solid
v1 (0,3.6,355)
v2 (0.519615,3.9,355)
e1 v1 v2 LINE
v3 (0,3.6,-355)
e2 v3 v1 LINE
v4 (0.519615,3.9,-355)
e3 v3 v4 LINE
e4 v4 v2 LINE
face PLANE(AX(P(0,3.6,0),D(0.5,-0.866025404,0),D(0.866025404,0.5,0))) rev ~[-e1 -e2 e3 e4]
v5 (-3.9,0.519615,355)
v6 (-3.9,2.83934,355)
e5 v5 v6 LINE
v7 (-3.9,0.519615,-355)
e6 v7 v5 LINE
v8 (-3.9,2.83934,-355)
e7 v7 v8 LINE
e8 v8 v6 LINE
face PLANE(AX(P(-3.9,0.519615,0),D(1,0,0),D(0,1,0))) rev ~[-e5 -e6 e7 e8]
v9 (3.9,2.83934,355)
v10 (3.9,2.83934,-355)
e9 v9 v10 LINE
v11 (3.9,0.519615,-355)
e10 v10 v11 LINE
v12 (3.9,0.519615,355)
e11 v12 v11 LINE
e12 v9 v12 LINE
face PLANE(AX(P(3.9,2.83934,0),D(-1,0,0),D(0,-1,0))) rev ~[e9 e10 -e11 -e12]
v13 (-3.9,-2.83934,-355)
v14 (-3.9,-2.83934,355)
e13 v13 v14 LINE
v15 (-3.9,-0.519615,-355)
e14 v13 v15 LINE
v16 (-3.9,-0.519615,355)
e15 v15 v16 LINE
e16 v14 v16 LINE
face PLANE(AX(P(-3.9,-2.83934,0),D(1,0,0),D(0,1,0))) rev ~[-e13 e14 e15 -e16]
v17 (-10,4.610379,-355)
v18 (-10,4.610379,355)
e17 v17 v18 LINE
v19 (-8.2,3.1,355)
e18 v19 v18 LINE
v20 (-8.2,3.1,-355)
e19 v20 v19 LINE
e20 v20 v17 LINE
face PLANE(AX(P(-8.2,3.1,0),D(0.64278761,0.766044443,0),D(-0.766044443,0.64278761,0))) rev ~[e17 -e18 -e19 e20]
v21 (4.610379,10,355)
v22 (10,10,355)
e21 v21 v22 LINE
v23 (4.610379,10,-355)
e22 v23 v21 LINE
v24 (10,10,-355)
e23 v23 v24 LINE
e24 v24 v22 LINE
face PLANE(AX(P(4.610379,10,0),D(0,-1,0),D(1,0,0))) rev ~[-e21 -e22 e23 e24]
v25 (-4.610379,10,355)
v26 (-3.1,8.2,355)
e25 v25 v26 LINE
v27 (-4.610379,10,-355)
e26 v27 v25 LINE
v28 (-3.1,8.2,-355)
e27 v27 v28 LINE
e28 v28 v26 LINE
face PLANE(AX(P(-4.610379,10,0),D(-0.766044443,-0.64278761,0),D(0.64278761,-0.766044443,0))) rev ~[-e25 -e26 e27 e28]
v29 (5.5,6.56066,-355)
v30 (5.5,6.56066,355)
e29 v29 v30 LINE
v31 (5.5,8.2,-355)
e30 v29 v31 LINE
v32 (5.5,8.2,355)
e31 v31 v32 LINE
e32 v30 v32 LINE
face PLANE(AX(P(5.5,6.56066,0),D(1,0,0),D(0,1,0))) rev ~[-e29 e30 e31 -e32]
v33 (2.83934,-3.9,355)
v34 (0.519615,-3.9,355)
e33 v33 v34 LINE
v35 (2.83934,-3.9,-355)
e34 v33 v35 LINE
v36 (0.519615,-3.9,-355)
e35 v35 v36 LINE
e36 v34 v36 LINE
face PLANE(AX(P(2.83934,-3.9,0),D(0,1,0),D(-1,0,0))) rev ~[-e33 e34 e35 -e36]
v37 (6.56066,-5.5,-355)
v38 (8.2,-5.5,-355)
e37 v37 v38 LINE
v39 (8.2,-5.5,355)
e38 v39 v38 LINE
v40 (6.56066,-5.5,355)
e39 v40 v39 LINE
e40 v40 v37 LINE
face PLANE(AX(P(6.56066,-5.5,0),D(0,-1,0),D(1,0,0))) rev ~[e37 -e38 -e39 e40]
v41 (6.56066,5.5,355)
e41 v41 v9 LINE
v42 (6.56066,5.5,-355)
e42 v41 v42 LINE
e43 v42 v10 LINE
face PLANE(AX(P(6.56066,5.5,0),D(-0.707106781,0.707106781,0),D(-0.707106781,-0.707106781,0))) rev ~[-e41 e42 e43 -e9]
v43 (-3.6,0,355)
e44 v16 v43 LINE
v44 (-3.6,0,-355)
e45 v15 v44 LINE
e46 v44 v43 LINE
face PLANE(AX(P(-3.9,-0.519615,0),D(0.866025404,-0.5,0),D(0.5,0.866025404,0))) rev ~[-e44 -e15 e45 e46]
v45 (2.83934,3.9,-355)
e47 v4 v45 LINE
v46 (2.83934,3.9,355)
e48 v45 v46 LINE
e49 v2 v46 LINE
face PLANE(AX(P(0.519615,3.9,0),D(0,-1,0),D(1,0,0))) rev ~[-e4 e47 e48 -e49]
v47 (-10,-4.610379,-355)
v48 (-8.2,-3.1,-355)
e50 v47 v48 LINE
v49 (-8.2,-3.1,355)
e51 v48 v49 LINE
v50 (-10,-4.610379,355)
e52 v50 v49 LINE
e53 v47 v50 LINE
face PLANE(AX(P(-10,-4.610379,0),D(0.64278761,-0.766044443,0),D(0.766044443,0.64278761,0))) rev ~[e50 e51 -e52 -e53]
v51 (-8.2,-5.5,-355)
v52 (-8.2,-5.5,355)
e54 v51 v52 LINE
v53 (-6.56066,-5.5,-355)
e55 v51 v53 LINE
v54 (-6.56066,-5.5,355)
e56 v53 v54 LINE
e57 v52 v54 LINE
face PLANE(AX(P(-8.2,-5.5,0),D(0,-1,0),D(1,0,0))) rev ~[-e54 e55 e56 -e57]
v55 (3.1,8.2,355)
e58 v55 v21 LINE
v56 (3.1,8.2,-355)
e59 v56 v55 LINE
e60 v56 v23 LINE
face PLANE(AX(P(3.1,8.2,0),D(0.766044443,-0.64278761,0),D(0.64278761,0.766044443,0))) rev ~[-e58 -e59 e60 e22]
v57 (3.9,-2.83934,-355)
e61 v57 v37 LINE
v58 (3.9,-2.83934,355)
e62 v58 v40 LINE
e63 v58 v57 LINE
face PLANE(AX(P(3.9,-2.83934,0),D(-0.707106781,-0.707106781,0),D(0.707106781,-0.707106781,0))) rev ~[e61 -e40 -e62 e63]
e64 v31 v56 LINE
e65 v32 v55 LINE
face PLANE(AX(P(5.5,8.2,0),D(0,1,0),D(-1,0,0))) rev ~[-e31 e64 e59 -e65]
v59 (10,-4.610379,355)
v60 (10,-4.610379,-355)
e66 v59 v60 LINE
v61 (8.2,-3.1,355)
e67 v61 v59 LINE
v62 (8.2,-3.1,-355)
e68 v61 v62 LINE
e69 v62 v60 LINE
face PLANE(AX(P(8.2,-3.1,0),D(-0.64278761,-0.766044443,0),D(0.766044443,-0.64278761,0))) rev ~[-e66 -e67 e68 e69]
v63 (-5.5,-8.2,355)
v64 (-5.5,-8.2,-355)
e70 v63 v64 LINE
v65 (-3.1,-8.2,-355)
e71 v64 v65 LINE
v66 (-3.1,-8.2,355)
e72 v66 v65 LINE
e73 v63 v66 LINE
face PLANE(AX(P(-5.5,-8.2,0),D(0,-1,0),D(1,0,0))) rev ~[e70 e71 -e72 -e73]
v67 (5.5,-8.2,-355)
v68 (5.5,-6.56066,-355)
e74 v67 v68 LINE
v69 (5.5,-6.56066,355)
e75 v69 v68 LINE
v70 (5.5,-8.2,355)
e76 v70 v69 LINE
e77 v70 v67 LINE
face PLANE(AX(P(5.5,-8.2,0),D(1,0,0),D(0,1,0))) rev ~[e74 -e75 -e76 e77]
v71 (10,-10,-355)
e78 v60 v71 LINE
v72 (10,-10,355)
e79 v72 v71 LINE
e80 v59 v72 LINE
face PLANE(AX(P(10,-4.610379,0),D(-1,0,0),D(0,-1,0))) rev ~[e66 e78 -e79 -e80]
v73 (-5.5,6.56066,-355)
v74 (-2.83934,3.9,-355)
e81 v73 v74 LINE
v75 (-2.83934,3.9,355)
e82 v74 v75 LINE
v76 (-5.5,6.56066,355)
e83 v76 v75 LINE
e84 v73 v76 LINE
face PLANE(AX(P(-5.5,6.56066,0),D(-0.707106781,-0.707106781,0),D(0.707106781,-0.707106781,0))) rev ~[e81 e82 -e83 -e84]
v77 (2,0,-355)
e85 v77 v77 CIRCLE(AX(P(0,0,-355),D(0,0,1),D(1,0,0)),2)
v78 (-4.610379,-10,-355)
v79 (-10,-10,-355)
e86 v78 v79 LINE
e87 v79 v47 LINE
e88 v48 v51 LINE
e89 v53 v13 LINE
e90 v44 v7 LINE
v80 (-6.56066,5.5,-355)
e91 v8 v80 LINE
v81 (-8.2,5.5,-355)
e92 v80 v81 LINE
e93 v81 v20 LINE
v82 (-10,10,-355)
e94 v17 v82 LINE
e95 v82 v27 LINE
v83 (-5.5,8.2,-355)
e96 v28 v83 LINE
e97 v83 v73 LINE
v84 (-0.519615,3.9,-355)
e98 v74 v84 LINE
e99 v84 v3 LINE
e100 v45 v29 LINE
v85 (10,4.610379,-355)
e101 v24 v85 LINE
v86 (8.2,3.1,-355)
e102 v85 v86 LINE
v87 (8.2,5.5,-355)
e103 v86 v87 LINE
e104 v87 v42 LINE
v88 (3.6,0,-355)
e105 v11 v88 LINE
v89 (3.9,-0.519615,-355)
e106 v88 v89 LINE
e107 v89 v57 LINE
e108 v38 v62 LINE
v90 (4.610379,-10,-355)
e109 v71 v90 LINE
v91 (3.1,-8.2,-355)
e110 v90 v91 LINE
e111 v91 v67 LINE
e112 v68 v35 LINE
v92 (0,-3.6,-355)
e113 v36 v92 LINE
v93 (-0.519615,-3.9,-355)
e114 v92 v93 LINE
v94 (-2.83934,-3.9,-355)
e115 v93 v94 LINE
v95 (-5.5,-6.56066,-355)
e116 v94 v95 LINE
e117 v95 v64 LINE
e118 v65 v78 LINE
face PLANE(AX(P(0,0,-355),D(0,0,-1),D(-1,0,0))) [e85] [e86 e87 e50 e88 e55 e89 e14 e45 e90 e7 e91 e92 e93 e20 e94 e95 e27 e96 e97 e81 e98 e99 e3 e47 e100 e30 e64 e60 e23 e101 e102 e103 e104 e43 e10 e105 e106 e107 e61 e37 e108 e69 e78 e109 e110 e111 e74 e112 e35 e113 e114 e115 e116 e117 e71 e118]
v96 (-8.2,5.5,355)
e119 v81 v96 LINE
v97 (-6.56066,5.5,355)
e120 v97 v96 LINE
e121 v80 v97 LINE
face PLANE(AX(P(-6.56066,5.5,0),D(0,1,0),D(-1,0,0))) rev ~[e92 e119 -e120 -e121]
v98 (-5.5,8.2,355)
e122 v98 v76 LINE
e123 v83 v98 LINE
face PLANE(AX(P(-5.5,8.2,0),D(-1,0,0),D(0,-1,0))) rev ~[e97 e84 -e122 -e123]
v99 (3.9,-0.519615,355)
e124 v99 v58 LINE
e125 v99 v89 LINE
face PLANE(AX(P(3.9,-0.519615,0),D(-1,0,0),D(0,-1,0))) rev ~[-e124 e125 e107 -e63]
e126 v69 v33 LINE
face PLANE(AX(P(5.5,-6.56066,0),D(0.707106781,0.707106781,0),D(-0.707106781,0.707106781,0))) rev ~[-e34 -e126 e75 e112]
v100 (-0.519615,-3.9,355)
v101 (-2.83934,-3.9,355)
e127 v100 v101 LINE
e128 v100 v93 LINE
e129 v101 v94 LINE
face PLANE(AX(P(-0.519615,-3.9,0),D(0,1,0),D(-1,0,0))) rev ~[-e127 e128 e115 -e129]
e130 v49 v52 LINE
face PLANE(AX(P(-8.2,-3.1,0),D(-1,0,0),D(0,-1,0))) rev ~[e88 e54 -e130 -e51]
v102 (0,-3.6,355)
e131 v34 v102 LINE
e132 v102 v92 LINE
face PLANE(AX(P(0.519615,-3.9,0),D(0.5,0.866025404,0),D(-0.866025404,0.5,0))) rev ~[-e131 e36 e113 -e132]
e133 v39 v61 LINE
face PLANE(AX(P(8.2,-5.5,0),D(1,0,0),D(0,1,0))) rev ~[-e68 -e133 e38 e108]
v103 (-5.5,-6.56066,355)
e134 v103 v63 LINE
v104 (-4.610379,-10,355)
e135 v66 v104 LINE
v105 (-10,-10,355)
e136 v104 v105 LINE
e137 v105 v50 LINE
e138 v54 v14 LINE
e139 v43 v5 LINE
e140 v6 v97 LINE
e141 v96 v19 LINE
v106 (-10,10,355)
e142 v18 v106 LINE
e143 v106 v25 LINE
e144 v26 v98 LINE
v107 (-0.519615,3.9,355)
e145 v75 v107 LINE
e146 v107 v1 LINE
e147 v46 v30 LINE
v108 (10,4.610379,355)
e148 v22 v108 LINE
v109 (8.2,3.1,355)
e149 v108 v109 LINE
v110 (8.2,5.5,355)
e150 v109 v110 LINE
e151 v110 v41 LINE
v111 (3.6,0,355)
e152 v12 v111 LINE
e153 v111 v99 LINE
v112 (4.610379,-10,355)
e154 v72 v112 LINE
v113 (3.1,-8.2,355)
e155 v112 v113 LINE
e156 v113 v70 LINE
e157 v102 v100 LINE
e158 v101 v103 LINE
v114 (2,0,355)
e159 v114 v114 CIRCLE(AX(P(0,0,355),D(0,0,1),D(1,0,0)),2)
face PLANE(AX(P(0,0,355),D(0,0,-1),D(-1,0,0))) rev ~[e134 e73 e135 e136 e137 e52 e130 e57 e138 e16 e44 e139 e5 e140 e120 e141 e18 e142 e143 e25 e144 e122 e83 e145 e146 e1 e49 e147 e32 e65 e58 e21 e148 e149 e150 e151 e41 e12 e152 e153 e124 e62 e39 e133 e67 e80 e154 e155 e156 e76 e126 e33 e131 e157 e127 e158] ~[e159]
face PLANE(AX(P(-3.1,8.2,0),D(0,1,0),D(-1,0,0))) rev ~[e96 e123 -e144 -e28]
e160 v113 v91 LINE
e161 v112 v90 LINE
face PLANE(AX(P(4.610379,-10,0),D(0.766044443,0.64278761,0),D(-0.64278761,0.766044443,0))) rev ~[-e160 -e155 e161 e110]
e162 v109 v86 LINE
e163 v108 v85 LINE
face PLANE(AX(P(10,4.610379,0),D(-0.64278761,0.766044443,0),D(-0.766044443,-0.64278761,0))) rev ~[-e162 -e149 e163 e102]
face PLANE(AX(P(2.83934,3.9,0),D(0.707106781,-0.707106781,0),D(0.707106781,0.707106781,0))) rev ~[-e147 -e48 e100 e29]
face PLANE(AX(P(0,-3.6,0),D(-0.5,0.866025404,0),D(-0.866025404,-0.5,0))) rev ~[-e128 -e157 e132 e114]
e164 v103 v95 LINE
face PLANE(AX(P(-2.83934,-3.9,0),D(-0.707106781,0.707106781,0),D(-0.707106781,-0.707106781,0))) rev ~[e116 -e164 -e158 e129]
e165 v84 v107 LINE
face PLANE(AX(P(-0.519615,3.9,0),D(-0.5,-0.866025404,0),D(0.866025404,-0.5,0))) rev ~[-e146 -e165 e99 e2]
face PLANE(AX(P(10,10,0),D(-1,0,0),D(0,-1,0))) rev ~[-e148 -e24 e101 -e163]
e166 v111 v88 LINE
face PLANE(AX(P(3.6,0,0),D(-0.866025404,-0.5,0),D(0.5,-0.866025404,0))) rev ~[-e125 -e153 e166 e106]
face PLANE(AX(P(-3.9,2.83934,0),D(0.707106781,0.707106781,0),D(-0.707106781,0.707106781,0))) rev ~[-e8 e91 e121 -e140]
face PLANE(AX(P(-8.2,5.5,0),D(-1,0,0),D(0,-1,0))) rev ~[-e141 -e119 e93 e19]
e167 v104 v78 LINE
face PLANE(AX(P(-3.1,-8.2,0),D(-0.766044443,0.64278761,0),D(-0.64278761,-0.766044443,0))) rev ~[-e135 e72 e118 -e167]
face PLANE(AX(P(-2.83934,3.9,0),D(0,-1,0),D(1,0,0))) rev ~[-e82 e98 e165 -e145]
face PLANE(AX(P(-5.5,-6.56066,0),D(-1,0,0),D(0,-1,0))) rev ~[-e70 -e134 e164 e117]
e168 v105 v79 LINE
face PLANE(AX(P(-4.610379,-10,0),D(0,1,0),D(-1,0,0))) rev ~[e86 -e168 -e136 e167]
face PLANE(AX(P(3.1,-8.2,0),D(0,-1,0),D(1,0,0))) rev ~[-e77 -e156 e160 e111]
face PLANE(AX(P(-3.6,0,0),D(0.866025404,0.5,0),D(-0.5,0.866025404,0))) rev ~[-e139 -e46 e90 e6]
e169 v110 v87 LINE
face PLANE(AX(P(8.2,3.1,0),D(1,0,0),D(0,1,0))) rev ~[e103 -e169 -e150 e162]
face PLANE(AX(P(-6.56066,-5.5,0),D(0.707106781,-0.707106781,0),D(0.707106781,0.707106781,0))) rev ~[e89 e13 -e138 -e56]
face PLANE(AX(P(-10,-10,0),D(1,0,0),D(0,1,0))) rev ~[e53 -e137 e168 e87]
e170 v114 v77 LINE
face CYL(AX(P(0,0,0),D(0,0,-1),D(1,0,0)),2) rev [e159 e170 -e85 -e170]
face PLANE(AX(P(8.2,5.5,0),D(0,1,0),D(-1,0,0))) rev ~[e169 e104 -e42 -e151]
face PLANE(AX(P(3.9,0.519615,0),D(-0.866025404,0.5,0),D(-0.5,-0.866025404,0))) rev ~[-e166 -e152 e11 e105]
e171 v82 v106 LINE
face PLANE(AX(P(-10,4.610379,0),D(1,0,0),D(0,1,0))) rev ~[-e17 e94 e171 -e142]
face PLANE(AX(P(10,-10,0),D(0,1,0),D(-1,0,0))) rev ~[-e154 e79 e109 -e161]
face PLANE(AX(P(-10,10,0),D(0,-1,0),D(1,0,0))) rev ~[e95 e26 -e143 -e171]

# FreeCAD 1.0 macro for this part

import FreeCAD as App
import Part
import Sketcher
Q = App.Units.Quantity


def add_polygon(sketch, points):
    """Adds a closed chain of lines whose ends are joined by coincident constraints."""
    first, n = sketch.GeometryCount, len(points)
    for a, b in zip(points, points[1:] + points[:1]):
        sketch.addGeometry(Part.LineSegment(App.Vector(*a, 0), App.Vector(*b, 0)), False)
    for i in range(n):
        sketch.addConstraint(Sketcher.Constraint("Coincident", first + i, 2, first + (i + 1) % n, 1))

doc = App.newDocument("Part")
params = doc.addObject("Spreadsheet::Sheet", "Params")
for row, (alias, value) in enumerate([
    ("sketch1_diameter", "4 mm"),
    ("sketch1_width", "2.4 mm"),
    ("sketch1_length", "0.6 mm"),
    ("pad1_length", "710 mm"),
], start=1):
    params.set(f"A{row}", alias)
    params.set(f"B{row}", "=" + value)
    params.setAlias(f"B{row}", alias)

body = doc.addObject("PartDesign::Body", "Body")

# Sketch on XY plane
sketch1 = doc.addObject("Sketcher::SketchObject", "Sketch")
body.addObject(sketch1)
sketch1.AttachmentSupport = (doc.XY_Plane, [""])
sketch1.MapMode = "FlatFace"
add_polygon(sketch1, [(10, 4.610379), (10, 10), (4.610379, 10), (3.1, 8.2), (5.5, 8.2), (5.5, 6.56066), (2.83934, 3.9), (0.519615, 3.9), (0, 3.6), (-0.519615, 3.9), (-2.83934, 3.9), (-5.5, 6.56066), (-5.5, 8.2), (-3.1, 8.2), (-4.610379, 10), (-10, 10), (-10, 4.610379), (-8.2, 3.1), (-8.2, 5.5), (-6.56066, 5.5), (-3.9, 2.83934), (-3.9, 0.519615), (-3.6, 0), (-3.9, -0.519615), (-3.9, -2.83934), (-6.56066, -5.5), (-8.2, -5.5), (-8.2, -3.1), (-10, -4.610379), (-10, -10), (-4.610379, -10), (-3.1, -8.2), (-5.5, -8.2), (-5.5, -6.56066), (-2.83934, -3.9), (-0.519615, -3.9), (0, -3.6), (0.519615, -3.9), (2.83934, -3.9), (5.5, -6.56066), (5.5, -8.2), (3.1, -8.2), (4.610379, -10), (10, -10), (10, -4.610379), (8.2, -3.1), (8.2, -5.5), (6.56066, -5.5), (3.9, -2.83934), (3.9, -0.519615), (3.6, 0), (3.9, 0.519615), (3.9, 2.83934), (6.56066, 5.5), (8.2, 5.5), (8.2, 3.1)])  # lines 0-55
sketch1.addGeometry(Part.Circle(App.Vector(0, 0, 0), App.Vector(0, 0, 1), 2), False)  # 56
sketch1.addConstraint([
    Sketcher.Constraint("Vertical", 0),
    Sketcher.Constraint("Horizontal", 1),
    Sketcher.Constraint("Horizontal", 3),
    Sketcher.Constraint("Vertical", 4),
    Sketcher.Constraint("Horizontal", 6),
    Sketcher.Constraint("Horizontal", 9),
    Sketcher.Constraint("Vertical", 11),
    Sketcher.Constraint("Horizontal", 12),
    Sketcher.Constraint("Horizontal", 14),
    Sketcher.Constraint("Vertical", 15),
    Sketcher.Constraint("Vertical", 17),
    Sketcher.Constraint("Horizontal", 18),
    Sketcher.Constraint("Vertical", 20),
    Sketcher.Constraint("Vertical", 23),
    Sketcher.Constraint("Horizontal", 25),
    Sketcher.Constraint("Vertical", 26),
    Sketcher.Constraint("Vertical", 28),
    Sketcher.Constraint("Horizontal", 29),
    Sketcher.Constraint("Horizontal", 31),
    Sketcher.Constraint("Vertical", 32),
    Sketcher.Constraint("Horizontal", 34),
    Sketcher.Constraint("Horizontal", 37),
    Sketcher.Constraint("Vertical", 39),
    Sketcher.Constraint("Horizontal", 40),
    Sketcher.Constraint("Horizontal", 42),
    Sketcher.Constraint("Vertical", 43),
    Sketcher.Constraint("Vertical", 45),
    Sketcher.Constraint("Horizontal", 46),
    Sketcher.Constraint("Vertical", 48),
    Sketcher.Constraint("Vertical", 51),
    Sketcher.Constraint("Horizontal", 53),
    Sketcher.Constraint("Vertical", 54),
    Sketcher.Constraint("Coincident", 56, 3, -1, 1),
    Sketcher.Constraint("Symmetric", 0, 2, 28, 2, -1, 1),
    Sketcher.Constraint("Symmetric", 2, 2, 30, 2, -1, 1),
    Sketcher.Constraint("Symmetric", 4, 2, 32, 2, -1, 1),
    Sketcher.Constraint("Symmetric", 5, 2, 33, 2, -1, 1),
    Sketcher.Constraint("Symmetric", 7, 2, 35, 2, -1, 1),
    Sketcher.Constraint("Symmetric", 8, 2, 36, 2, -1, 1),
    Sketcher.Constraint("Symmetric", 10, 2, 38, 2, -1, 1),
    Sketcher.Constraint("Symmetric", 12, 2, 40, 2, -1, 1),
    Sketcher.Constraint("Symmetric", 13, 2, 41, 2, -1, 1),
    Sketcher.Constraint("Symmetric", 15, 2, 43, 2, -1, 1),
    Sketcher.Constraint("Symmetric", 16, 2, 44, 2, -1, 1),
    Sketcher.Constraint("Symmetric", 18, 2, 46, 2, -1, 1),
    Sketcher.Constraint("Symmetric", 19, 2, 47, 2, -1, 1),
    Sketcher.Constraint("Symmetric", 21, 2, 49, 2, -1, 1),
    Sketcher.Constraint("Symmetric", 22, 2, 50, 2, -1, 1),
    Sketcher.Constraint("Symmetric", 24, 2, 52, 2, -1, 1),
    Sketcher.Constraint("Symmetric", 26, 2, 54, 2, -1, 1),
    Sketcher.Constraint("Symmetric", 6, 2, 8, 2, -2),
    Sketcher.Constraint("Symmetric", 4, 2, 10, 2, -2),
    Sketcher.Constraint("Symmetric", 2, 2, 12, 2, -2),
    Sketcher.Constraint("Symmetric", 1, 2, 13, 2, -2),
    Sketcher.Constraint("Symmetric", 27, 2, 43, 2, -2),
    Sketcher.Constraint("Symmetric", 26, 2, 44, 2, -2),
    Sketcher.Constraint("Symmetric", 24, 2, 46, 2, -2),
    Sketcher.Constraint("Symmetric", 23, 2, 47, 2, -2),
    Sketcher.Constraint("PointOnObject", 7, 2, -2),
    Sketcher.Constraint("PointOnObject", 21, 2, -1),
    Sketcher.Constraint("Perpendicular", 5, 10),
    Sketcher.Constraint("Perpendicular", 2, 16),
    Sketcher.Constraint("Parallel", 10, 19),
    Sketcher.Constraint("Perpendicular", 7, 21),
    Sketcher.Constraint("Perpendicular", 8, 22),
    Sketcher.Constraint("Perpendicular", 19, 24),
    Sketcher.Constraint("Perpendicular", 16, 30),
    Sketcher.Constraint("Perpendicular", 21, 35),
    Sketcher.Constraint("Perpendicular", 33, 38),
    Sketcher.Constraint("Perpendicular", 35, 49),
    Sketcher.Constraint("Perpendicular", 47, 52),
    Sketcher.Constraint("Perpendicular", 41, 55),
    Sketcher.Constraint("Equal", 42, 0),
    Sketcher.Constraint("Equal", 53, 4),
    Sketcher.Constraint("Equal", 40, 17),
    Sketcher.Constraint("Equal", 37, 20),
    Sketcher.Constraint("Equal", 13, 16),
    Sketcher.Constraint("Equal", 10, 19),
    Sketcher.Constraint("Equal", 8, 21),
    Sketcher.Constraint("Diameter", 56, 4.0),
    Sketcher.Constraint("Angle", 2, Q("-130 deg")),
    Sketcher.Constraint("Angle", 7, Q("-150 deg")),
    Sketcher.Constraint("DistanceX", 3, 1, 3, 2, 2.4),
    Sketcher.Constraint("DistanceX", -1, 1, 0, 2, 10.0),
    Sketcher.Constraint("Distance", 7, 0.6),
    Sketcher.Constraint("DistanceX", -1, 1, 2, 2, 3.1),
    Sketcher.Constraint("DistanceY", -1, 1, 2, 2, 8.2),
    Sketcher.Constraint("DistanceY", -1, 1, 5, 2, 3.9),
    Sketcher.Constraint("DistanceX", 18, 1, 18, 2, 1.63934),
])
sketch1.setExpression("Constraints[135]", "Params.sketch1_diameter")
sketch1.setExpression("Constraints[138]", "Params.sketch1_width")
sketch1.setExpression("Constraints[140]", "Params.sketch1_length")
pad1 = doc.addObject("PartDesign::Pad", "Pad")
body.addObject(pad1)
pad1.Profile = sketch1
pad1.setExpression("Length", "Params.pad1_length")
pad1.Midplane = True

doc.recompute()
